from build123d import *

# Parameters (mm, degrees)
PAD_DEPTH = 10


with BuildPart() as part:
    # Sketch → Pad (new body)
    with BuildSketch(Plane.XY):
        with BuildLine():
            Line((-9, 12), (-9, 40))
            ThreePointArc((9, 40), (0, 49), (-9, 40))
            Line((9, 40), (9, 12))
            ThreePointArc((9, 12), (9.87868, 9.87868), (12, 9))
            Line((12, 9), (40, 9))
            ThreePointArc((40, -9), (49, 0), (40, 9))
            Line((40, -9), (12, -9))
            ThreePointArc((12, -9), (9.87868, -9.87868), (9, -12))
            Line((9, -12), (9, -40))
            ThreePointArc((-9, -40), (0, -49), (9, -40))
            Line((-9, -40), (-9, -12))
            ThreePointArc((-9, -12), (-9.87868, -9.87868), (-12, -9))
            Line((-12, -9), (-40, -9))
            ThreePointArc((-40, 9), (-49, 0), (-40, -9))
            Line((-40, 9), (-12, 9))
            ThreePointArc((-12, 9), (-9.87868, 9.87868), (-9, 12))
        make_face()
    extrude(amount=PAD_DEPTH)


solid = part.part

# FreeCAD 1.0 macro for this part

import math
import FreeCAD as App
import Part
import Sketcher
from FreeCAD import Vector
Q = App.Units.Quantity

doc = App.newDocument("Part")
body = doc.addObject("PartDesign::Body", "Body")

# Sketch on XY plane
sketch1 = body.newObject("Sketcher::SketchObject", "Sketch")
sketch1.AttachmentSupport = (doc.getObject("XY_Plane"), [""])
sketch1.MapMode = "FlatFace"
sketch1.addGeometry(Part.LineSegment(Vector(-9, 40, 0), Vector(-9, 12, 0)), False)
sketch1.addGeometry(Part.ArcOfCircle(Part.Circle(Vector(-12, 12, 0), Vector(0, 0, 1), 3), math.radians(-90), math.radians(0)), False)
sketch1.addGeometry(Part.LineSegment(Vector(-12, 9, 0), Vector(-40, 9, 0)), False)
sketch1.addGeometry(Part.ArcOfCircle(Part.Circle(Vector(-40, 0, 0), Vector(0, 0, 1), 9), math.radians(90), math.radians(270)), False)
sketch1.addGeometry(Part.LineSegment(Vector(-40, -9, 0), Vector(-12, -9, 0)), False)
sketch1.addGeometry(Part.ArcOfCircle(Part.Circle(Vector(-12, -12, 0), Vector(0, 0, 1), 3), math.radians(0), math.radians(90)), False)
sketch1.addGeometry(Part.LineSegment(Vector(-9, -12, 0), Vector(-9, -40, 0)), False)
sketch1.addGeometry(Part.ArcOfCircle(Part.Circle(Vector(0, -40, 0), Vector(0, 0, 1), 9), math.radians(180), math.radians(360)), False)
sketch1.addGeometry(Part.LineSegment(Vector(9, -40, 0), Vector(9, -12, 0)), False)
sketch1.addGeometry(Part.ArcOfCircle(Part.Circle(Vector(12, -12, 0), Vector(0, 0, 1), 3), math.radians(90), math.radians(180)), False)
sketch1.addGeometry(Part.LineSegment(Vector(12, -9, 0), Vector(40, -9, 0)), False)
sketch1.addGeometry(Part.ArcOfCircle(Part.Circle(Vector(40, 0, 0), Vector(0, 0, 1), 9), math.radians(-90), math.radians(90)), False)
sketch1.addGeometry(Part.LineSegment(Vector(40, 9, 0), Vector(12, 9, 0)), False)
sketch1.addGeometry(Part.ArcOfCircle(Part.Circle(Vector(12, 12, 0), Vector(0, 0, 1), 3), math.radians(-180), math.radians(-90)), False)
sketch1.addGeometry(Part.LineSegment(Vector(9, 12, 0), Vector(9, 40, 0)), False)
sketch1.addGeometry(Part.ArcOfCircle(Part.Circle(Vector(0, 40, 0), Vector(0, 0, 1), 9), math.radians(0), math.radians(180)), False)
sketch1.addConstraint(Sketcher.Constraint("Tangent", 0, 2, 1, 2))
sketch1.addConstraint(Sketcher.Constraint("Tangent", 1, 1, 2, 1))
sketch1.addConstraint(Sketcher.Constraint("Tangent", 2, 2, 3, 1))
sketch1.addConstraint(Sketcher.Constraint("Tangent", 3, 2, 4, 1))
sketch1.addConstraint(Sketcher.Constraint("Tangent", 4, 2, 5, 2))
sketch1.addConstraint(Sketcher.Constraint("Tangent", 5, 1, 6, 1))
sketch1.addConstraint(Sketcher.Constraint("Tangent", 6, 2, 7, 1))
sketch1.addConstraint(Sketcher.Constraint("Tangent", 7, 2, 8, 1))
sketch1.addConstraint(Sketcher.Constraint("Tangent", 8, 2, 9, 2))
sketch1.addConstraint(Sketcher.Constraint("Tangent", 9, 1, 10, 1))
sketch1.addConstraint(Sketcher.Constraint("Tangent", 10, 2, 11, 1))
sketch1.addConstraint(Sketcher.Constraint("Tangent", 11, 2, 12, 1))
sketch1.addConstraint(Sketcher.Constraint("Tangent", 12, 2, 13, 2))
sketch1.addConstraint(Sketcher.Constraint("Tangent", 13, 1, 14, 1))
sketch1.addConstraint(Sketcher.Constraint("Tangent", 14, 2, 15, 1))
sketch1.addConstraint(Sketcher.Constraint("Tangent", 15, 2, 0, 1))
sketch1.addConstraint(Sketcher.Constraint("Vertical", 0))
sketch1.addConstraint(Sketcher.Constraint("Horizontal", 2))
sketch1.addConstraint(Sketcher.Constraint("Horizontal", 4))
sketch1.addConstraint(Sketcher.Constraint("Vertical", 6))
sketch1.addConstraint(Sketcher.Constraint("Vertical", 8))
sketch1.addConstraint(Sketcher.Constraint("Horizontal", 10))
sketch1.addConstraint(Sketcher.Constraint("Horizontal", 12))
sketch1.addConstraint(Sketcher.Constraint("Vertical", 14))
sketch1.addConstraint(Sketcher.Constraint("Equal", 1, 5))
sketch1.addConstraint(Sketcher.Constraint("Equal", 3, 7))
sketch1.addConstraint(Sketcher.Constraint("Equal", 5, 9))
sketch1.addConstraint(Sketcher.Constraint("Equal", 7, 11))
sketch1.addConstraint(Sketcher.Constraint("Equal", 9, 13))
sketch1.addConstraint(Sketcher.Constraint("Equal", 11, 15))
sketch1.addConstraint(Sketcher.Constraint("Symmetric", 1, 3, 9, 3, -1, 1))
sketch1.addConstraint(Sketcher.Constraint("Symmetric", 5, 3, 9, 3, -2))
sketch1.addConstraint(Sketcher.Constraint("Equal", 4, 10))
sketch1.addConstraint(Sketcher.Constraint("Equal", 12, 0))
sketch1.addConstraint(Sketcher.Constraint("Equal", 0, 6))
sketch1.addConstraint(Sketcher.Constraint("Radius", 1, Q("3.000001 mm")))
sketch1.addConstraint(Sketcher.Constraint("Radius", 3, Q("9 mm")))
sketch1.addConstraint(Sketcher.Constraint("DistanceX", 2, 2, 2, 1, Q("28 mm")))
pad1 = body.newObject("PartDesign::Pad", "Pad")
pad1.Profile = sketch1
pad1.Length = 10

doc.recompute()
